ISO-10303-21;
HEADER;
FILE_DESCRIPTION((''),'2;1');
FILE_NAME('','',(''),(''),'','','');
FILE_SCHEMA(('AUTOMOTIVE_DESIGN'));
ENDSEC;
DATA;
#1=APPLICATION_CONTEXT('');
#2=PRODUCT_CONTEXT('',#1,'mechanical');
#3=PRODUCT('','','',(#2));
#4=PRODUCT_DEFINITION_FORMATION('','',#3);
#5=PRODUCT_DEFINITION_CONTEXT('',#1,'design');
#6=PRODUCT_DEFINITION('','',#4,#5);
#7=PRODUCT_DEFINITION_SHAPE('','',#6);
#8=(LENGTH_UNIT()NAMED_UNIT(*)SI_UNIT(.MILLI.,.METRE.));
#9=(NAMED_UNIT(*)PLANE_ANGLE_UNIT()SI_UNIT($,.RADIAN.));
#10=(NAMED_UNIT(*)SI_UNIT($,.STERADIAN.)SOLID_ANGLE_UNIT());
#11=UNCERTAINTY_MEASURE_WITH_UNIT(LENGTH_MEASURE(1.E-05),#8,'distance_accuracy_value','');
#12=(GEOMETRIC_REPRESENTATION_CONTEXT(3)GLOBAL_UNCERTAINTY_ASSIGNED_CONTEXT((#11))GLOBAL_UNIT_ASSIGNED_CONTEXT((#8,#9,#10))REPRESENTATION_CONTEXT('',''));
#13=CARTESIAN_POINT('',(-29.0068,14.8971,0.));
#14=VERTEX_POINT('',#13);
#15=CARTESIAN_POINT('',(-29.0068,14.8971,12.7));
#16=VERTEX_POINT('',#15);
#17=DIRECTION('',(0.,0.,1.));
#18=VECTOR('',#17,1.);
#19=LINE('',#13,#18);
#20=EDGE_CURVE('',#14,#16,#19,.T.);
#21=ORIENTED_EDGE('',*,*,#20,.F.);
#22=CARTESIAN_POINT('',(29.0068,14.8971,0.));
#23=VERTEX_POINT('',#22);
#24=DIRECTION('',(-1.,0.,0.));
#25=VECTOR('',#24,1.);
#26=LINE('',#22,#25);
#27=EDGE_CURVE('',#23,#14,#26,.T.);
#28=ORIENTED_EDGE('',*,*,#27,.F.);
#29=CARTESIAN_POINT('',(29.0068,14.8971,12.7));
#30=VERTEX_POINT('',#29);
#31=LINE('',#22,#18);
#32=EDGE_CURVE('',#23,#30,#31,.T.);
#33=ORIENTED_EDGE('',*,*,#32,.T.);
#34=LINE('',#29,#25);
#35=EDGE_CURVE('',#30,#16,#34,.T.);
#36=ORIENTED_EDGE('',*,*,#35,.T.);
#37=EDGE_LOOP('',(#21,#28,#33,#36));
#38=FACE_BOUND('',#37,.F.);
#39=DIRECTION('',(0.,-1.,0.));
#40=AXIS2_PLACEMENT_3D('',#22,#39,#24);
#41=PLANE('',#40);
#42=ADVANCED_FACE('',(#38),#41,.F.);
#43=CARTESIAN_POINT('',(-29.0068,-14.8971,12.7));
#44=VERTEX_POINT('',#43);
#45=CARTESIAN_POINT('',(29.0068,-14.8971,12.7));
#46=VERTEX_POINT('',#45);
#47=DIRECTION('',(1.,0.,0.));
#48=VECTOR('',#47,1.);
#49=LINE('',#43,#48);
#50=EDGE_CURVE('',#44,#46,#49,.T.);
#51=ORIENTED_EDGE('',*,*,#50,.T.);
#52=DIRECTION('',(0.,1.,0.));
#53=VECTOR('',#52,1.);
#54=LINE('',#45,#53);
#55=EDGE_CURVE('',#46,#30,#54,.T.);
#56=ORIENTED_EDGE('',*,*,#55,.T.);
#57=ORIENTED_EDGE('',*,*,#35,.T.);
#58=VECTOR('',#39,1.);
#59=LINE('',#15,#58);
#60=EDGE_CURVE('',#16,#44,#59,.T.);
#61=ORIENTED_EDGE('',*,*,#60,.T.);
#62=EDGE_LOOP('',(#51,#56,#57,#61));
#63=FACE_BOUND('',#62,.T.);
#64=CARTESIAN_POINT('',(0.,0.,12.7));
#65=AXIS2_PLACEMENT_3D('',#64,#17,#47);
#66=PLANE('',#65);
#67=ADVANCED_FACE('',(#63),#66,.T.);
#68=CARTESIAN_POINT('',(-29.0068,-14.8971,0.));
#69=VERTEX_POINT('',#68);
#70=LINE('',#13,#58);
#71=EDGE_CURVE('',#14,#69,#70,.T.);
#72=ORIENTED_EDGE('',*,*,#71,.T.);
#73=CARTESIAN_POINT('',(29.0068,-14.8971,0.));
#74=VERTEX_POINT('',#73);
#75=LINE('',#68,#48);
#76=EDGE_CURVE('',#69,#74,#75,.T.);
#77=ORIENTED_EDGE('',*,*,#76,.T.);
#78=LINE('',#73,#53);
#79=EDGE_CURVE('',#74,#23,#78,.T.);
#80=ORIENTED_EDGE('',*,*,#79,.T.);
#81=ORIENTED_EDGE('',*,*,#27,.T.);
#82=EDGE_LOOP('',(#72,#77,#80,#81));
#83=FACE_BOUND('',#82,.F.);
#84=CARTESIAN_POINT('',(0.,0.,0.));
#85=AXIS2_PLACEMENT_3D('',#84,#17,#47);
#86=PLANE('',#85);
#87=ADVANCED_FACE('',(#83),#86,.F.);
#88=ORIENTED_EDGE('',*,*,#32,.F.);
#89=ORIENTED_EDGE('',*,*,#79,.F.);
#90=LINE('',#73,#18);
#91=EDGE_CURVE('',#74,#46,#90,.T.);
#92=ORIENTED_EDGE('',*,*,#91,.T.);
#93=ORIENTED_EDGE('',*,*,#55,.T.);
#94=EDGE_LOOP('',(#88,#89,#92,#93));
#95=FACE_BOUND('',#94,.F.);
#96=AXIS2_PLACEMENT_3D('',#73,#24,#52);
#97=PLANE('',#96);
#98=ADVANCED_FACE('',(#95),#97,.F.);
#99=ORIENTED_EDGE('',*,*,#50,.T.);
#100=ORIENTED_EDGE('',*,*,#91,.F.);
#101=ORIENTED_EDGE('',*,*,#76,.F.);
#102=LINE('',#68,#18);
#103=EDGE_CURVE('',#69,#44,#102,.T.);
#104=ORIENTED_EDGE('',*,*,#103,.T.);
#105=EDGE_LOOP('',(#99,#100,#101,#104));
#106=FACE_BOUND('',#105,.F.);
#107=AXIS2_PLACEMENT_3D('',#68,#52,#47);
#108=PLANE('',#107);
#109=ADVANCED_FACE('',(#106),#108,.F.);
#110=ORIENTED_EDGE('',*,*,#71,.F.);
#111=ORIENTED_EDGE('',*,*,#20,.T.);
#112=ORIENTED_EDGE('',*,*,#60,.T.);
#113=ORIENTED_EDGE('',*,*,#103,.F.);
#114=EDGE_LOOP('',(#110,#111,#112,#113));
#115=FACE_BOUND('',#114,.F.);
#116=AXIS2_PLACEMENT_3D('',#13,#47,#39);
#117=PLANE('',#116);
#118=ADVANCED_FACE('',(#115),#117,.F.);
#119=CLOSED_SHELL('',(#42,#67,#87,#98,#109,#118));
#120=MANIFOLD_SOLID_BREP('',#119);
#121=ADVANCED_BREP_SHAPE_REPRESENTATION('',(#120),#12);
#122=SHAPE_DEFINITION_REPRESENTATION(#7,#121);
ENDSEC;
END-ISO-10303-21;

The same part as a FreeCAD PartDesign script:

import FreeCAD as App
import Part
import Sketcher
Q = App.Units.Quantity


def add_polygon(sketch, points):
    """Adds a closed chain of lines whose ends are joined by coincident constraints."""
    first, n = sketch.GeometryCount, len(points)
    for a, b in zip(points, points[1:] + points[:1]):
        sketch.addGeometry(Part.LineSegment(App.Vector(*a, 0), App.Vector(*b, 0)), False)
    for i in range(n):
        sketch.addConstraint(Sketcher.Constraint("Coincident", first + i, 2, first + (i + 1) % n, 1))

doc = App.newDocument("Part")
params = doc.addObject("Spreadsheet::Sheet", "Params")
for row, (alias, value) in enumerate([
    ("sketch1_width", "2.284 in"),
    ("sketch1_height", "1.173 in"),
    ("pad1_length", "0.5 in"),
], start=1):
    params.set(f"A{row}", alias)
    params.set(f"B{row}", "=" + value)
    params.setAlias(f"B{row}", alias)

body = doc.addObject("PartDesign::Body", "Body")

sketch1 = doc.addObject("Sketcher::SketchObject", "Sketch")
body.addObject(sketch1)
sketch1.AttachmentSupport = (doc.XY_Plane, [""])
sketch1.MapMode = "FlatFace"
add_polygon(sketch1, [(-29, 15), (-29, -15), (29, -15), (29, 15)])
sketch1.addConstraint([
    Sketcher.Constraint("Vertical", 0),
    Sketcher.Constraint("Horizontal", 1),
    Sketcher.Constraint("Vertical", 2),
    Sketcher.Constraint("Horizontal", 3),
    Sketcher.Constraint("Symmetric", 0, 2, 2, 2, -1, 1),
    Sketcher.Constraint("DistanceX", 1, 1, 1, 2, Q("2.284 in")),
    Sketcher.Constraint("DistanceY", 0, 2, 0, 1, Q("1.173 in")),
])
sketch1.setExpression("Constraints[9]", "Params.sketch1_width")
sketch1.setExpression("Constraints[10]", "Params.sketch1_height")
pad1 = doc.addObject("PartDesign::Pad", "Pad")
body.addObject(pad1)
pad1.Profile = sketch1
pad1.setExpression("Length", "Params.pad1_length")

doc.recompute()
